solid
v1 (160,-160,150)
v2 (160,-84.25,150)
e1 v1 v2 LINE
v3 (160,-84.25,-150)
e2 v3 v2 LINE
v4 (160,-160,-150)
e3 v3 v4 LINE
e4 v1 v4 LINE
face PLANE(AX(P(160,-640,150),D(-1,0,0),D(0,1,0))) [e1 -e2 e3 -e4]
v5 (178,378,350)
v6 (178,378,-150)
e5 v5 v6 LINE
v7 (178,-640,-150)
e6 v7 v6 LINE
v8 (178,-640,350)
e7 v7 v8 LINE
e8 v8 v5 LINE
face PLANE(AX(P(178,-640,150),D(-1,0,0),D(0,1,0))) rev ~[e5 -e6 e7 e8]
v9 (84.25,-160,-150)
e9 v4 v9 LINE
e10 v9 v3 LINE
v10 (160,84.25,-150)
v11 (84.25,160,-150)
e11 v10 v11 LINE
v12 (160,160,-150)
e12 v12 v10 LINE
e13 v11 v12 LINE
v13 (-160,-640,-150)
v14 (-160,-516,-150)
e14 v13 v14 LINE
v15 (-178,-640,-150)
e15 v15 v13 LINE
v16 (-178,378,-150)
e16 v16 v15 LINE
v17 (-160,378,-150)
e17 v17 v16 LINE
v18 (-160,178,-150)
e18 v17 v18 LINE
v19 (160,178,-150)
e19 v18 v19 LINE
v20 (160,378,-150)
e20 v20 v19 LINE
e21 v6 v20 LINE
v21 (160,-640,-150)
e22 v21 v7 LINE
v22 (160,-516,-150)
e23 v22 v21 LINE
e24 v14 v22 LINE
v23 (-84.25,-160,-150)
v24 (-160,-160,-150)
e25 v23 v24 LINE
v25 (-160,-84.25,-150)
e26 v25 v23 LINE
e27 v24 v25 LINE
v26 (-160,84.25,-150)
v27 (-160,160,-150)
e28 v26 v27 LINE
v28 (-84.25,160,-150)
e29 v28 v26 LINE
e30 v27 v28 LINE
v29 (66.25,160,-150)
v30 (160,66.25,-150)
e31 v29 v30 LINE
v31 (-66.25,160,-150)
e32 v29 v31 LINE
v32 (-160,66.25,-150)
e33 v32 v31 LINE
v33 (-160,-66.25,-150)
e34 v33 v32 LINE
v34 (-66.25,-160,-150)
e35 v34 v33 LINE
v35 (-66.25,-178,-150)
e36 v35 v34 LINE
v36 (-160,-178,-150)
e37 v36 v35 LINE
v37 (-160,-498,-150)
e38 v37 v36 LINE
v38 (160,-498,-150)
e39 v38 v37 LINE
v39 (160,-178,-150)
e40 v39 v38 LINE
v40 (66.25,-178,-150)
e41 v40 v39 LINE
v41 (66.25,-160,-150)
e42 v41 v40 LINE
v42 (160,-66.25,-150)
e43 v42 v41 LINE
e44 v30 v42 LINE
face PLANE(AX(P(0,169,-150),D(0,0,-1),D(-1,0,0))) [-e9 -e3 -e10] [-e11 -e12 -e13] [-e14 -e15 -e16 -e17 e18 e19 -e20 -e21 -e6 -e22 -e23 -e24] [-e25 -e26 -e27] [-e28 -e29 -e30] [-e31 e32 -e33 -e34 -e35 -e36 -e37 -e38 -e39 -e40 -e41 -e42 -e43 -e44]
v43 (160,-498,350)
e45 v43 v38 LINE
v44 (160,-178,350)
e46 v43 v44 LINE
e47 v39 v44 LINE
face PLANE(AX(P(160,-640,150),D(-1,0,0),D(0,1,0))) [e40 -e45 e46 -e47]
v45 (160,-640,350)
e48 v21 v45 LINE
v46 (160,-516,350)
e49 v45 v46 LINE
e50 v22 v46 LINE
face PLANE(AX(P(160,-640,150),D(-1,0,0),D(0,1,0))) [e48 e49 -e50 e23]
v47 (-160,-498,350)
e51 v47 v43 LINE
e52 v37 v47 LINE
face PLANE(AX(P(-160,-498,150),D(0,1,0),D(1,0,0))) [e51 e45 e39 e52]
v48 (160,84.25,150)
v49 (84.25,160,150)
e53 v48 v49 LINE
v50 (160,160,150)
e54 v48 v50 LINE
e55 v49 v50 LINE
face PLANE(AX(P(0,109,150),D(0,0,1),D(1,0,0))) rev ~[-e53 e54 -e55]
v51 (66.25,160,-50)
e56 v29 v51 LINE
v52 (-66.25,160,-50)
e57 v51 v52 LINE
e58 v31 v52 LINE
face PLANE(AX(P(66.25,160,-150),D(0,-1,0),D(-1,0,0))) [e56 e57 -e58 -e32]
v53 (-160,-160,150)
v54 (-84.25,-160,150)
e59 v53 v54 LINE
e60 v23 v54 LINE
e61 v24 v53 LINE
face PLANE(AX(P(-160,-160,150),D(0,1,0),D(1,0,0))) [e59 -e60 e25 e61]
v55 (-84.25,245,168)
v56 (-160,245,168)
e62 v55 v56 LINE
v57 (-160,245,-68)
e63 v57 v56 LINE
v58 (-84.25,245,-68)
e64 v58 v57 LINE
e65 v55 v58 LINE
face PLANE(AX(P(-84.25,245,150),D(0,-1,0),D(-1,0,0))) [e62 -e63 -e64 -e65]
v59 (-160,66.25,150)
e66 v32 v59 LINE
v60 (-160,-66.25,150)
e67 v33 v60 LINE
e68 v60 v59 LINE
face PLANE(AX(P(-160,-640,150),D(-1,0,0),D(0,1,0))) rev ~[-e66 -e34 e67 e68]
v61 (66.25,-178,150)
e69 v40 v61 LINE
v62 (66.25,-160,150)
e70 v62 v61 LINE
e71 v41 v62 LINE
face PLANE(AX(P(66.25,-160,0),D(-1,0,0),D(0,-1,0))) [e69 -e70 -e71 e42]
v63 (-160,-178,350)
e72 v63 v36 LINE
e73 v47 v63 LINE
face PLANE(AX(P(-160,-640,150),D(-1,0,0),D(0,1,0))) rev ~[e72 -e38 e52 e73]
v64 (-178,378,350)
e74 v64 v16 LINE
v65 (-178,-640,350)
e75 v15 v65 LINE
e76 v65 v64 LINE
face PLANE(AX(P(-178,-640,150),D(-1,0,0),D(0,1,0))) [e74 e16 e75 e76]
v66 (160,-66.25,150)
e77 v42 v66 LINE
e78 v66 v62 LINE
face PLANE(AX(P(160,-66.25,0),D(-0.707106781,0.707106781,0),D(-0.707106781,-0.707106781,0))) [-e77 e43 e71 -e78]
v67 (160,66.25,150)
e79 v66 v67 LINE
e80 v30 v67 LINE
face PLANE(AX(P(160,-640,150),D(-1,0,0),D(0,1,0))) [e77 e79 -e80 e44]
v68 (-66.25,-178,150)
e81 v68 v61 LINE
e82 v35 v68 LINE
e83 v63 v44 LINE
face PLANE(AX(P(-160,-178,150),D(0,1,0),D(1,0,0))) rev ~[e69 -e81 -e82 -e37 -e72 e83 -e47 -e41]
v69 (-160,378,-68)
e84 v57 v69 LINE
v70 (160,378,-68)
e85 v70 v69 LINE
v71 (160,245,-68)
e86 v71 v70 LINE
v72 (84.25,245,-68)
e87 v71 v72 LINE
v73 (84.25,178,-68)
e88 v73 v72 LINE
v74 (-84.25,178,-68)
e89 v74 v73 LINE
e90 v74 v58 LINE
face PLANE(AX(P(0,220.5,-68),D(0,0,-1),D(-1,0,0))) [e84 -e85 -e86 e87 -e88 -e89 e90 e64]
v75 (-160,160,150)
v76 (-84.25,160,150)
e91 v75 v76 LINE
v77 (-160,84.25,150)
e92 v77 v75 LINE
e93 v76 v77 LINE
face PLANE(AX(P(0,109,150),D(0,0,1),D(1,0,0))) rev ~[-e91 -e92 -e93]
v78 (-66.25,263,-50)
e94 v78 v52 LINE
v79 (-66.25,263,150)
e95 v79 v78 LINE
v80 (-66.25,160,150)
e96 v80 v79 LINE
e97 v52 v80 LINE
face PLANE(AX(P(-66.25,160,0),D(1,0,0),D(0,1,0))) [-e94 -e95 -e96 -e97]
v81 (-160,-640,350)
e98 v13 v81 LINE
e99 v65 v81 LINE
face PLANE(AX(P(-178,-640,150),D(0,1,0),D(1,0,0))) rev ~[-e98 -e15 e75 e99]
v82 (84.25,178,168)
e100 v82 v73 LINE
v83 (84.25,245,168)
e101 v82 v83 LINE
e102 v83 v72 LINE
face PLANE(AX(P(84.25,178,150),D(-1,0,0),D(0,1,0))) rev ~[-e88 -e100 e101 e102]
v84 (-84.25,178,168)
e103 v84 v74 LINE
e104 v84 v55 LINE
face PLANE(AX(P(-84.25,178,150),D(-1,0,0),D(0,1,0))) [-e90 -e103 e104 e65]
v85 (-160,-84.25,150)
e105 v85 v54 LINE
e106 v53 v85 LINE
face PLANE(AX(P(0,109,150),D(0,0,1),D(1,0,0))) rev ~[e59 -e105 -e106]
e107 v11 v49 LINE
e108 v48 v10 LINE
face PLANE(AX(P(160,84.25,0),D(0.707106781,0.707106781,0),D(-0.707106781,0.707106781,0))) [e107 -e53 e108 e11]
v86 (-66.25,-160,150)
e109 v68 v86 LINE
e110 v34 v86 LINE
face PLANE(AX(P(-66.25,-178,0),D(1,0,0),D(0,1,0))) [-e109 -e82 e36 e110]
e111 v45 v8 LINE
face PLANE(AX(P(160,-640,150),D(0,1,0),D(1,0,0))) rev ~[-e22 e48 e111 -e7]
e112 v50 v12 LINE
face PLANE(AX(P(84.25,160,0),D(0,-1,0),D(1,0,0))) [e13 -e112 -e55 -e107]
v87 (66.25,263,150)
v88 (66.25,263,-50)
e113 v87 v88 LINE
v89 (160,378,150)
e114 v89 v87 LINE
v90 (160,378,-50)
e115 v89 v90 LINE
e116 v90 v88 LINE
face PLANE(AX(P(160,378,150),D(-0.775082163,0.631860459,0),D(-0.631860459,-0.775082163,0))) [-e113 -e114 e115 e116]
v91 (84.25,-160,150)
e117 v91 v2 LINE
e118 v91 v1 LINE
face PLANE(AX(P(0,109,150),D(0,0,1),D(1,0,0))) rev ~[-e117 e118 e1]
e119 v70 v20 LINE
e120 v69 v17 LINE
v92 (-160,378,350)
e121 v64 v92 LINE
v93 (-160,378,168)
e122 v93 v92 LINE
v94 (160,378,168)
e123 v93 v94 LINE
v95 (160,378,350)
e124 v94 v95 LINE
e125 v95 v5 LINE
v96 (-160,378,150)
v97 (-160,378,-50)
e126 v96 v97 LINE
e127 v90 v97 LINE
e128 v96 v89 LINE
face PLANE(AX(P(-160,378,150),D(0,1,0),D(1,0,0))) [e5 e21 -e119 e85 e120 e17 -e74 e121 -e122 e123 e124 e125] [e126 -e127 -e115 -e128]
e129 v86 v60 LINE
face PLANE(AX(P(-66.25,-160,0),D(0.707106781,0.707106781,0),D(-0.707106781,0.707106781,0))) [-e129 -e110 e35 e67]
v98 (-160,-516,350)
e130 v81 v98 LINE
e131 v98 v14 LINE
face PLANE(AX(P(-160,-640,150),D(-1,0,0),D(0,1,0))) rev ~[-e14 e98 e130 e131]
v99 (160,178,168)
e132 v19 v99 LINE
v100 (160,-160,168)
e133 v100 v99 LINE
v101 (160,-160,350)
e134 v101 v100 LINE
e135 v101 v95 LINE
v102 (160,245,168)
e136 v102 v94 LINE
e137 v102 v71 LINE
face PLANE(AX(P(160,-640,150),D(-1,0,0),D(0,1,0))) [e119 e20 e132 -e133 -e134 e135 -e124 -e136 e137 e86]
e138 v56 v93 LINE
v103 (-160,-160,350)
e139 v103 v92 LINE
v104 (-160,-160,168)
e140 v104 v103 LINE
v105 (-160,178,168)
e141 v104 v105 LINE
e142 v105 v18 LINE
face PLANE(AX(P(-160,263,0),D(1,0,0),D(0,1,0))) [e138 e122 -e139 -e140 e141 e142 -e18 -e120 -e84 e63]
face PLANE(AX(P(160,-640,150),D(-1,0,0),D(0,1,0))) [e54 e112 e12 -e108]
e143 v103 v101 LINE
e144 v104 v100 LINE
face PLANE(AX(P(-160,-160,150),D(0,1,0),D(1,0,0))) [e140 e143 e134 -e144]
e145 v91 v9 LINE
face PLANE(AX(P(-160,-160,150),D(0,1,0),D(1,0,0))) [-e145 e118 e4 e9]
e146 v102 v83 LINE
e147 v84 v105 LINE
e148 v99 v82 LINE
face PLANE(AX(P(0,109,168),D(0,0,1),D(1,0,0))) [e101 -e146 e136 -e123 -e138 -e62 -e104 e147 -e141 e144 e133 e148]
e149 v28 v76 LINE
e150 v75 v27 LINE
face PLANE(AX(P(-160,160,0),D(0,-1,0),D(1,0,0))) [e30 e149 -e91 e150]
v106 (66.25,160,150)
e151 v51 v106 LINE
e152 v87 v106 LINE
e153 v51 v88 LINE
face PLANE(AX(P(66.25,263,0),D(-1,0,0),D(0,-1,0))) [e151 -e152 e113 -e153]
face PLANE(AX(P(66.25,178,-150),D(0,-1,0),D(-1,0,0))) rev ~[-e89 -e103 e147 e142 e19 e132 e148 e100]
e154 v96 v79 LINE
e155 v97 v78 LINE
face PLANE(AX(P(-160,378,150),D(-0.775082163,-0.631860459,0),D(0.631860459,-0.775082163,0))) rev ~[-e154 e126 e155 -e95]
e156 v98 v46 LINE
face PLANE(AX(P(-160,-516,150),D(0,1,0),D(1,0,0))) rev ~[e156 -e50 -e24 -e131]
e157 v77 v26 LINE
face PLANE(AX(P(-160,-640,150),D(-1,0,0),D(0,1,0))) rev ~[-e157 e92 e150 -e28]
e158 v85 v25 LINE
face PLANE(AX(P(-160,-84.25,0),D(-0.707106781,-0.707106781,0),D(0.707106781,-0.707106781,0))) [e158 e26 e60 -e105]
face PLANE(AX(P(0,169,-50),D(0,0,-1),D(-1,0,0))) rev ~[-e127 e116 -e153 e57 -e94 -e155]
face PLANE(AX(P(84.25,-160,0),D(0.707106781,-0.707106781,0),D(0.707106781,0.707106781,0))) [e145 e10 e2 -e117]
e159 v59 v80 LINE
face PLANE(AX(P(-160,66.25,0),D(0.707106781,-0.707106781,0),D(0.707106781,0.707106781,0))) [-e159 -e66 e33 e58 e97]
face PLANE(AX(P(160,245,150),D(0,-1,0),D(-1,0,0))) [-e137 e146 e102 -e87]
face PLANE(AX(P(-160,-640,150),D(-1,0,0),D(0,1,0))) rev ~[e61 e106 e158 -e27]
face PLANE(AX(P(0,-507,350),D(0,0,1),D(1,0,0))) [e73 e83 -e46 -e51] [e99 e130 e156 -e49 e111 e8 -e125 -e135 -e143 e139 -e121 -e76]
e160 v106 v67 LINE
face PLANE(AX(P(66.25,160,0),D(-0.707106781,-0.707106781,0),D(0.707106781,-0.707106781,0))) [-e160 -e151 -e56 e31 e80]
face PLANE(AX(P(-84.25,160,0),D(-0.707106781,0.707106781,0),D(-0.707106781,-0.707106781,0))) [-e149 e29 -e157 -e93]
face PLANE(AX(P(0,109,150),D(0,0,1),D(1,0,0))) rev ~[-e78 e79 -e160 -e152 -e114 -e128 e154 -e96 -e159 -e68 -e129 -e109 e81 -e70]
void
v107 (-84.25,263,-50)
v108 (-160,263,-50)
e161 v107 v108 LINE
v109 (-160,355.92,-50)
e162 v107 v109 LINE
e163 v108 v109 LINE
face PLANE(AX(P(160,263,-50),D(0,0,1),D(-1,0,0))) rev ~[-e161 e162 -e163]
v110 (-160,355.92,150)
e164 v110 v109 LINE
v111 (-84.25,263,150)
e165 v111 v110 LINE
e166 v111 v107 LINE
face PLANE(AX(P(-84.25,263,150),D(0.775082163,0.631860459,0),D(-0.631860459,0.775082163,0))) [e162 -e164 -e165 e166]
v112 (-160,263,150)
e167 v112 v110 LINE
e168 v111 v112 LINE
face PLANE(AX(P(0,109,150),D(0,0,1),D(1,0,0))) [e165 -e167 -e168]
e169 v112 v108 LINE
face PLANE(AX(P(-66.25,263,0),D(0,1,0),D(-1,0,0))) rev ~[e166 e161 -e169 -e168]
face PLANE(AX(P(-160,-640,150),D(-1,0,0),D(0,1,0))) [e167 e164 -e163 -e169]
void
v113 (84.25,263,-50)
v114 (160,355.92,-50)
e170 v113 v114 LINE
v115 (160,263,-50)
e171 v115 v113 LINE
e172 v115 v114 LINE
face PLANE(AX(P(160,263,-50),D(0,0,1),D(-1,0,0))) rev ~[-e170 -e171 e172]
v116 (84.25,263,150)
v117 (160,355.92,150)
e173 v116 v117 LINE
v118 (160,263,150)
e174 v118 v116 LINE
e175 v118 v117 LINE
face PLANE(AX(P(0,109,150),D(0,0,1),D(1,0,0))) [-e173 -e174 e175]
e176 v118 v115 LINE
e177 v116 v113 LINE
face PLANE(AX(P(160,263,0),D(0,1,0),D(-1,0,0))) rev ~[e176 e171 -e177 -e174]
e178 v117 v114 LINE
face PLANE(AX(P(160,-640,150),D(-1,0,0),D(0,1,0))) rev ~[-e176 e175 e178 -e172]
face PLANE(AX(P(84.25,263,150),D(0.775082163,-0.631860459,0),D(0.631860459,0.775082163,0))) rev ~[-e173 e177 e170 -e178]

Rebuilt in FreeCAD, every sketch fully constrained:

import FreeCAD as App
import Part
import Sketcher
from FreeCAD import Vector
Q = App.Units.Quantity


def add_polygon(sketch, points):
    """Adds a closed chain of lines whose ends are joined by coincident constraints."""
    first, n = sketch.GeometryCount, len(points)
    for a, b in zip(points, points[1:] + points[:1]):
        sketch.addGeometry(Part.LineSegment(App.Vector(*a, 0), App.Vector(*b, 0)), False)
    for i in range(n):
        sketch.addConstraint(Sketcher.Constraint("Coincident", first + i, 2, first + (i + 1) % n, 1))

doc = App.newDocument("Part")
body = doc.addObject("PartDesign::Body", "Body")

# Sketch on XY plane
sketch1 = body.newObject("Sketcher::SketchObject", "Sketch")
sketch1.AttachmentSupport = (doc.getObject("XY_Plane"), [""])
sketch1.MapMode = "FlatFace"
add_polygon(sketch1, [(66.25, 263), (66.25, 160), (160, 66.25), (160, -66.25), (66.25, -160), (66.25, -178), (160, -178), (160, -498), (-160, -498), (-160, -178), (-66.25, -178), (-66.25, -160), (-160, -66.25), (-160, 66.25), (-66.25, 160), (-66.25, 263), (-160, 263), (-160, 378), (-178, 378), (-178, -640), (-160, -640), (-160, -516), (160, -516), (160, -640), (178, -640), (178, 378), (160, 378), (160, 263)])  # lines 0-27
add_polygon(sketch1, [(-160, -84.25), (-84.25, -160), (-160, -160)])  # lines 28-30
add_polygon(sketch1, [(84.25, -160), (160, -84.25), (160, -160)])  # lines 31-33
add_polygon(sketch1, [(-160, 160), (-84.25, 160), (-160, 84.25)])  # lines 34-36
add_polygon(sketch1, [(-84.25, 178), (-160, 178), (-160, 245), (-84.25, 245)])  # lines 37-40
add_polygon(sketch1, [(160, 84.25), (84.25, 160), (160, 160)])  # lines 41-43
add_polygon(sketch1, [(160, 178), (84.25, 178), (84.25, 245), (160, 245)])  # lines 44-47
sketch1.addConstraint(Sketcher.Constraint("Vertical", 0))
sketch1.addConstraint(Sketcher.Constraint("Vertical", 2))
sketch1.addConstraint(Sketcher.Constraint("Vertical", 4))
sketch1.addConstraint(Sketcher.Constraint("Horizontal", 5))
sketch1.addConstraint(Sketcher.Constraint("Vertical", 6))
sketch1.addConstraint(Sketcher.Constraint("Horizontal", 7))
sketch1.addConstraint(Sketcher.Constraint("Vertical", 8))
sketch1.addConstraint(Sketcher.Constraint("Horizontal", 9))
sketch1.addConstraint(Sketcher.Constraint("Vertical", 10))
sketch1.addConstraint(Sketcher.Constraint("Vertical", 12))
sketch1.addConstraint(Sketcher.Constraint("Vertical", 14))
sketch1.addConstraint(Sketcher.Constraint("Horizontal", 15))
sketch1.addConstraint(Sketcher.Constraint("Vertical", 16))
sketch1.addConstraint(Sketcher.Constraint("Horizontal", 17))
sketch1.addConstraint(Sketcher.Constraint("Vertical", 18))
sketch1.addConstraint(Sketcher.Constraint("Horizontal", 19))
sketch1.addConstraint(Sketcher.Constraint("Vertical", 20))
sketch1.addConstraint(Sketcher.Constraint("Horizontal", 21))
sketch1.addConstraint(Sketcher.Constraint("Vertical", 22))
sketch1.addConstraint(Sketcher.Constraint("Horizontal", 23))
sketch1.addConstraint(Sketcher.Constraint("Vertical", 24))
sketch1.addConstraint(Sketcher.Constraint("Horizontal", 25))
sketch1.addConstraint(Sketcher.Constraint("Vertical", 26))
sketch1.addConstraint(Sketcher.Constraint("Horizontal", 27))
sketch1.addConstraint(Sketcher.Constraint("Horizontal", 29))
sketch1.addConstraint(Sketcher.Constraint("Vertical", 30))
sketch1.addConstraint(Sketcher.Constraint("Vertical", 32))
sketch1.addConstraint(Sketcher.Constraint("Horizontal", 33))
sketch1.addConstraint(Sketcher.Constraint("Horizontal", 34))
sketch1.addConstraint(Sketcher.Constraint("Vertical", 36))
sketch1.addConstraint(Sketcher.Constraint("Horizontal", 37))
sketch1.addConstraint(Sketcher.Constraint("Vertical", 38))
sketch1.addConstraint(Sketcher.Constraint("Horizontal", 39))
sketch1.addConstraint(Sketcher.Constraint("Vertical", 40))
sketch1.addConstraint(Sketcher.Constraint("Horizontal", 42))
sketch1.addConstraint(Sketcher.Constraint("Vertical", 43))
sketch1.addConstraint(Sketcher.Constraint("Horizontal", 44))
sketch1.addConstraint(Sketcher.Constraint("Vertical", 45))
sketch1.addConstraint(Sketcher.Constraint("Horizontal", 46))
sketch1.addConstraint(Sketcher.Constraint("Vertical", 47))
sketch1.addConstraint(Sketcher.Constraint("Symmetric", 0, 2, 10, 2, -1, 1))
sketch1.addConstraint(Sketcher.Constraint("Symmetric", 1, 2, 11, 2, -1, 1))
sketch1.addConstraint(Sketcher.Constraint("Symmetric", 3, 2, 13, 2, -1, 1))
sketch1.addConstraint(Sketcher.Constraint("Symmetric", 33, 2, 34, 2, -1, 1))
sketch1.addConstraint(Sketcher.Constraint("Symmetric", 31, 2, 35, 2, -1, 1))
sketch1.addConstraint(Sketcher.Constraint("Symmetric", 5, 2, 37, 2, -1, 1))
sketch1.addConstraint(Sketcher.Constraint("Symmetric", 28, 2, 41, 2, -1, 1))
sketch1.addConstraint(Sketcher.Constraint("Symmetric", 30, 2, 43, 2, -1, 1))
sketch1.addConstraint(Sketcher.Constraint("Symmetric", 8, 2, 47, 2, -1, 1))
sketch1.addConstraint(Sketcher.Constraint("Symmetric", 5, 2, 8, 2, -2))
sketch1.addConstraint(Sketcher.Constraint("Symmetric", 3, 2, 10, 2, -2))
sketch1.addConstraint(Sketcher.Constraint("Symmetric", 19, 2, 22, 2, -2))
sketch1.addConstraint(Sketcher.Constraint("Symmetric", 17, 2, 24, 2, -2))
sketch1.addConstraint(Sketcher.Constraint("Symmetric", 15, 2, 26, 2, -2))
sketch1.addConstraint(Sketcher.Constraint("Symmetric", 30, 2, 31, 2, -2))
sketch1.addConstraint(Sketcher.Constraint("Symmetric", 28, 2, 33, 2, -2))
sketch1.addConstraint(Sketcher.Constraint("Symmetric", 39, 2, 45, 2, -2))
sketch1.addConstraint(Sketcher.Constraint("Perpendicular", 1, 3))
sketch1.addConstraint(Sketcher.Constraint("Perpendicular", 11, 13))
sketch1.addConstraint(Sketcher.Constraint("Perpendicular", 13, 28))
sketch1.addConstraint(Sketcher.Constraint("Perpendicular", 28, 31))
sketch1.addConstraint(Sketcher.Constraint("Horizontal", 10, 2, 28, 2))
sketch1.addConstraint(Sketcher.Constraint("Vertical", 2, 2, 5, 2))
sketch1.addConstraint(Sketcher.Constraint("Vertical", 12, 2, 15, 2))
sketch1.addConstraint(Sketcher.Constraint("Vertical", 16, 2, 19, 2))
sketch1.addConstraint(Sketcher.Constraint("Vertical", 20, 2, 29, 2))
sketch1.addConstraint(Sketcher.Constraint("Vertical", 34, 2, 39, 2))
sketch1.addConstraint(Sketcher.Constraint("Equal", 25, 4))
sketch1.addConstraint(Sketcher.Constraint("Equal", 21, 6))
sketch1.addConstraint(Sketcher.Constraint("DistanceX", 7, 2, 7, 1, Q("320 mm")))
sketch1.addConstraint(Sketcher.Constraint("DistanceX", 17, 2, 17, 1, Q("18 mm")))
sketch1.addConstraint(Sketcher.Constraint("DistanceY", 0, 2, 0, 1, Q("103 mm")))
sketch1.addConstraint(Sketcher.Constraint("DistanceY", 16, 1, 16, 2, Q("115 mm")))
sketch1.addConstraint(Sketcher.Constraint("DistanceY", 18, 2, 18, 1, Q("1018 mm")))
sketch1.addConstraint(Sketcher.Constraint("DistanceY", 20, 1, 20, 2, Q("124 mm")))
sketch1.addConstraint(Sketcher.Constraint("DistanceY", 38, 1, 38, 2, Q("67 mm")))
sketch1.addConstraint(Sketcher.Constraint("DistanceY", 2, 2, 2, 1, Q("132.5 mm")))
sketch1.addConstraint(Sketcher.Constraint("DistanceY", -1, 1, 0, 2, Q("160 mm")))
sketch1.addConstraint(Sketcher.Constraint("DistanceX", 28, 2, 10, 2, Q("18 mm")))
pad1 = body.newObject("PartDesign::Pad", "Pad")
pad1.Profile = sketch1
pad1.Length = 300
pad1.Midplane = True

# Sketch on XZ plane
sketch2 = body.newObject("Sketcher::SketchObject", "Sketch001")
sketch2.AttachmentSupport = (doc.getObject("XZ_Plane"), [""])
sketch2.MapMode = "FlatFace"
sketch2.AttachmentOffset = App.Placement(Vector(0, 0, -263), App.Rotation())
add_polygon(sketch2, [(160, -68), (160, -50), (-160, -50), (-160, -68)])  # lines 0-3
sketch2.addConstraint(Sketcher.Constraint("Vertical", 0))
sketch2.addConstraint(Sketcher.Constraint("Horizontal", 1))
sketch2.addConstraint(Sketcher.Constraint("Vertical", 2))
sketch2.addConstraint(Sketcher.Constraint("Horizontal", 3))
sketch2.addConstraint(Sketcher.Constraint("DistanceX", 1, 2, 1, 1, Q("320 mm")))
sketch2.addConstraint(Sketcher.Constraint("DistanceY", 0, 1, 0, 2, Q("18 mm")))
sketch2.addConstraint(Sketcher.Constraint("DistanceX", -1, 1, 0, 2, Q("160 mm")))
sketch2.addConstraint(Sketcher.Constraint("DistanceY", 0, 2, -1, 1, Q("50 mm")))
pad2 = body.newObject("PartDesign::Pad", "Pad001")
pad2.Profile = sketch2
pad2.Length = 115
pad2.Reversed = True

# Sketch on XY plane
sketch3 = body.newObject("Sketcher::SketchObject", "Sketch002")
sketch3.AttachmentSupport = (doc.getObject("XY_Plane"), [""])
sketch3.MapMode = "FlatFace"
sketch3.AttachmentOffset = App.Placement(Vector(0, 0, 150), App.Rotation())
add_polygon(sketch3, [(-66.25, 263), (-160, 378), (-160, 355.92), (-84.25, 263)])  # lines 0-3
sketch3.addConstraint(Sketcher.Constraint("Vertical", 1))
sketch3.addConstraint(Sketcher.Constraint("Horizontal", 3))
sketch3.addConstraint(Sketcher.Constraint("Parallel", 0, 2))
sketch3.addConstraint(Sketcher.Constraint("DistanceX", 3, 1, 3, 2, Q("18 mm")))
sketch3.addConstraint(Sketcher.Constraint("DistanceX", 0, 2, -1, 1, Q("160 mm")))
sketch3.addConstraint(Sketcher.Constraint("DistanceY", -1, 1, 0, 2, Q("378 mm")))
sketch3.addConstraint(Sketcher.Constraint("DistanceY", -1, 1, 2, 2, Q("263 mm")))
sketch3.addConstraint(Sketcher.Constraint("DistanceY", 1, 2, 1, 1, Q("22.08 mm")))
pad3 = body.newObject("PartDesign::Pad", "Pad002")
pad3.Profile = sketch3
pad3.Length = 200
pad3.Reversed = True

# Sketch on XY plane
sketch4 = body.newObject("Sketcher::SketchObject", "Sketch003")
sketch4.AttachmentSupport = (doc.getObject("XY_Plane"), [""])
sketch4.MapMode = "FlatFace"
sketch4.AttachmentOffset = App.Placement(Vector(0, 0, 150), App.Rotation())
add_polygon(sketch4, [(160, 378), (66.25, 263), (84.25, 263), (160, 355.92)])  # lines 0-3
sketch4.addConstraint(Sketcher.Constraint("Horizontal", 1))
sketch4.addConstraint(Sketcher.Constraint("Vertical", 3))
sketch4.addConstraint(Sketcher.Constraint("Parallel", 0, 2))
sketch4.addConstraint(Sketcher.Constraint("DistanceX", 1, 1, 1, 2, Q("18 mm")))
sketch4.addConstraint(Sketcher.Constraint("DistanceY", -1, 1, 0, 2, Q("263 mm")))
sketch4.addConstraint(Sketcher.Constraint("DistanceX", -1, 1, 2, 2, Q("160 mm")))
sketch4.addConstraint(Sketcher.Constraint("DistanceY", -1, 1, 3, 2, Q("378 mm")))
sketch4.addConstraint(Sketcher.Constraint("DistanceY", 3, 1, 3, 2, Q("22.08 mm")))
pad4 = body.newObject("PartDesign::Pad", "Pad003")
pad4.Profile = sketch4
pad4.Length = 200
pad4.Reversed = True

# Sketch on XY plane
sketch5 = body.newObject("Sketcher::SketchObject", "Sketch004")
sketch5.AttachmentSupport = (doc.getObject("XY_Plane"), [""])
sketch5.MapMode = "FlatFace"
sketch5.AttachmentOffset = App.Placement(Vector(0, 0, 150), App.Rotation())
add_polygon(sketch5, [(-178, 378), (-178, -640), (-160, -640), (-160, 378)])  # lines 0-3
sketch5.addConstraint(Sketcher.Constraint("Vertical", 0))
sketch5.addConstraint(Sketcher.Constraint("Horizontal", 1))
sketch5.addConstraint(Sketcher.Constraint("Vertical", 2))
sketch5.addConstraint(Sketcher.Constraint("Horizontal", 3))
sketch5.addConstraint(Sketcher.Constraint("DistanceX", 1, 1, 1, 2, Q("18 mm")))
sketch5.addConstraint(Sketcher.Constraint("DistanceY", 0, 2, 0, 1, Q("1018 mm")))
sketch5.addConstraint(Sketcher.Constraint("DistanceX", 0, 2, -1, 1, Q("178 mm")))
sketch5.addConstraint(Sketcher.Constraint("DistanceY", 0, 2, -1, 1, Q("640 mm")))
pad5 = body.newObject("PartDesign::Pad", "Pad004")
pad5.Profile = sketch5
pad5.Length = 200

# Sketch on XY plane
sketch6 = body.newObject("Sketcher::SketchObject", "Sketch005")
sketch6.AttachmentSupport = (doc.getObject("XY_Plane"), [""])
sketch6.MapMode = "FlatFace"
sketch6.AttachmentOffset = App.Placement(Vector(0, 0, 150), App.Rotation())
add_polygon(sketch6, [(160, 378), (160, -640), (178, -640), (178, 378)])  # lines 0-3
sketch6.addConstraint(Sketcher.Constraint("Vertical", 0))
sketch6.addConstraint(Sketcher.Constraint("Horizontal", 1))
sketch6.addConstraint(Sketcher.Constraint("Vertical", 2))
sketch6.addConstraint(Sketcher.Constraint("Horizontal", 3))
sketch6.addConstraint(Sketcher.Constraint("DistanceX", 1, 1, 1, 2, Q("18 mm")))
sketch6.addConstraint(Sketcher.Constraint("DistanceY", 0, 2, 0, 1, Q("1018 mm")))
sketch6.addConstraint(Sketcher.Constraint("DistanceX", -1, 1, 0, 2, Q("160 mm")))
sketch6.addConstraint(Sketcher.Constraint("DistanceY", 0, 2, -1, 1, Q("640 mm")))
pad6 = body.newObject("PartDesign::Pad", "Pad005")
pad6.Profile = sketch6
pad6.Length = 200

# Sketch on XY plane
sketch7 = body.newObject("Sketcher::SketchObject", "Sketch006")
sketch7.AttachmentSupport = (doc.getObject("XY_Plane"), [""])
sketch7.MapMode = "FlatFace"
sketch7.AttachmentOffset = App.Placement(Vector(0, 0, 150), App.Rotation())
add_polygon(sketch7, [(-160, -160), (-160, -178), (160, -178), (160, -160)])  # lines 0-3
sketch7.addConstraint(Sketcher.Constraint("Vertical", 0))
sketch7.addConstraint(Sketcher.Constraint("Horizontal", 1))
sketch7.addConstraint(Sketcher.Constraint("Vertical", 2))
sketch7.addConstraint(Sketcher.Constraint("Horizontal", 3))
sketch7.addConstraint(Sketcher.Constraint("DistanceX", 1, 1, 1, 2, Q("320 mm")))
sketch7.addConstraint(Sketcher.Constraint("DistanceY", 0, 2, 0, 1, Q("18 mm")))
sketch7.addConstraint(Sketcher.Constraint("DistanceX", 0, 2, -1, 1, Q("160 mm")))
sketch7.addConstraint(Sketcher.Constraint("DistanceY", 0, 2, -1, 1, Q("178 mm")))
pad7 = body.newObject("PartDesign::Pad", "Pad006")
pad7.Profile = sketch7
pad7.Length = 200

# Sketch on XY plane
sketch8 = body.newObject("Sketcher::SketchObject", "Sketch007")
sketch8.AttachmentSupport = (doc.getObject("XY_Plane"), [""])
sketch8.MapMode = "FlatFace"
sketch8.AttachmentOffset = App.Placement(Vector(0, 0, 150), App.Rotation())
add_polygon(sketch8, [(-160, -498), (-160, -516), (160, -516), (160, -498)])  # lines 0-3
sketch8.addConstraint(Sketcher.Constraint("Vertical", 0))
sketch8.addConstraint(Sketcher.Constraint("Horizontal", 1))
sketch8.addConstraint(Sketcher.Constraint("Vertical", 2))
sketch8.addConstraint(Sketcher.Constraint("Horizontal", 3))
sketch8.addConstraint(Sketcher.Constraint("DistanceX", 1, 1, 1, 2, Q("320 mm")))
sketch8.addConstraint(Sketcher.Constraint("DistanceY", 0, 2, 0, 1, Q("18 mm")))
sketch8.addConstraint(Sketcher.Constraint("DistanceX", 0, 2, -1, 1, Q("160 mm")))
sketch8.addConstraint(Sketcher.Constraint("DistanceY", 0, 2, -1, 1, Q("516 mm")))
pad8 = body.newObject("PartDesign::Pad", "Pad007")
pad8.Profile = sketch8
pad8.Length = 200

# Sketch on XY plane
sketch9 = body.newObject("Sketcher::SketchObject", "Sketch008")
sketch9.AttachmentSupport = (doc.getObject("XY_Plane"), [""])
sketch9.MapMode = "FlatFace"
sketch9.AttachmentOffset = App.Placement(Vector(0, 0, 150), App.Rotation())
add_polygon(sketch9, [(-160, 378), (-160, -160), (160, -160), (160, 378)])  # lines 0-3
sketch9.addConstraint(Sketcher.Constraint("Vertical", 0))
sketch9.addConstraint(Sketcher.Constraint("Horizontal", 1))
sketch9.addConstraint(Sketcher.Constraint("Vertical", 2))
sketch9.addConstraint(Sketcher.Constraint("Horizontal", 3))
sketch9.addConstraint(Sketcher.Constraint("DistanceX", 1, 1, 1, 2, Q("320 mm")))
sketch9.addConstraint(Sketcher.Constraint("DistanceY", 0, 2, 0, 1, Q("538 mm")))
sketch9.addConstraint(Sketcher.Constraint("DistanceX", 0, 2, -1, 1, Q("160 mm")))
sketch9.addConstraint(Sketcher.Constraint("DistanceY", 0, 2, -1, 1, Q("160 mm")))
pad9 = body.newObject("PartDesign::Pad", "Pad008")
pad9.Profile = sketch9
pad9.Length = 18

# Sketch on XY plane
sketch10 = body.newObject("Sketcher::SketchObject", "Sketch009")
sketch10.AttachmentSupport = (doc.getObject("XY_Plane"), [""])
sketch10.MapMode = "FlatFace"
sketch10.AttachmentOffset = App.Placement(Vector(0, 0, 150), App.Rotation())
add_polygon(sketch10, [(160, 245), (160, 178), (84.25, 178), (84.25, 245)])  # lines 0-3
sketch10.addConstraint(Sketcher.Constraint("Vertical", 0))
sketch10.addConstraint(Sketcher.Constraint("Horizontal", 1))
sketch10.addConstraint(Sketcher.Constraint("Vertical", 2))
sketch10.addConstraint(Sketcher.Constraint("Horizontal", 3))
sketch10.addConstraint(Sketcher.Constraint("DistanceY", 0, 2, 0, 1, Q("67 mm")))
sketch10.addConstraint(Sketcher.Constraint("DistanceX", -1, 1, 0, 2, Q("160 mm")))
sketch10.addConstraint(Sketcher.Constraint("DistanceY", -1, 1, 0, 2, Q("178 mm")))
sketch10.addConstraint(Sketcher.Constraint("DistanceX", 1, 2, 1, 1, Q("75.75 mm")))
pocket1 = body.newObject("PartDesign::Pocket", "Pocket")
pocket1.Profile = sketch10
pocket1.Length = 18
pocket1.Reversed = True

# Sketch on XY plane
sketch11 = body.newObject("Sketcher::SketchObject", "Sketch010")
sketch11.AttachmentSupport = (doc.getObject("XY_Plane"), [""])
sketch11.MapMode = "FlatFace"
sketch11.AttachmentOffset = App.Placement(Vector(0, 0, 150), App.Rotation())
add_polygon(sketch11, [(-84.25, 245), (-84.25, 178), (-160, 178), (-160, 245)])  # lines 0-3
sketch11.addConstraint(Sketcher.Constraint("Vertical", 0))
sketch11.addConstraint(Sketcher.Constraint("Horizontal", 1))
sketch11.addConstraint(Sketcher.Constraint("Vertical", 2))
sketch11.addConstraint(Sketcher.Constraint("Horizontal", 3))
sketch11.addConstraint(Sketcher.Constraint("DistanceY", 0, 2, 0, 1, Q("67 mm")))
sketch11.addConstraint(Sketcher.Constraint("DistanceY", -1, 1, 0, 2, Q("178 mm")))
sketch11.addConstraint(Sketcher.Constraint("DistanceX", 1, 2, -1, 1, Q("160 mm")))
sketch11.addConstraint(Sketcher.Constraint("DistanceX", 1, 2, 1, 1, Q("75.75 mm")))
pocket2 = body.newObject("PartDesign::Pocket", "Pocket001")
pocket2.Profile = sketch11
pocket2.Length = 18
pocket2.Reversed = True

# Sketch on XZ plane
sketch12 = body.newObject("Sketcher::SketchObject", "Sketch011")
sketch12.AttachmentSupport = (doc.getObject("XZ_Plane"), [""])
sketch12.MapMode = "FlatFace"
sketch12.AttachmentOffset = App.Placement(Vector(0, 0, -263), App.Rotation())
add_polygon(sketch12, [(66.25, -150), (66.25, -68), (160, -68), (160, -150)])  # lines 0-3
sketch12.addConstraint(Sketcher.Constraint("Vertical", 0))
sketch12.addConstraint(Sketcher.Constraint("Horizontal", 1))
sketch12.addConstraint(Sketcher.Constraint("Vertical", 2))
sketch12.addConstraint(Sketcher.Constraint("Horizontal", 3))
sketch12.addConstraint(Sketcher.Constraint("DistanceY", 0, 1, 0, 2, Q("82 mm")))
sketch12.addConstraint(Sketcher.Constraint("DistanceY", 0, 2, -1, 1, Q("68 mm")))
sketch12.addConstraint(Sketcher.Constraint("DistanceX", -1, 1, 1, 2, Q("160 mm")))
sketch12.addConstraint(Sketcher.Constraint("DistanceX", 1, 1, 1, 2, Q("93.75 mm")))
pocket3 = body.newObject("PartDesign::Pocket", "Pocket002")
pocket3.Profile = sketch12
pocket3.Length = 85
pocket3.Reversed = True

# Sketch on XZ plane
sketch13 = body.newObject("Sketcher::SketchObject", "Sketch012")
sketch13.AttachmentSupport = (doc.getObject("XZ_Plane"), [""])
sketch13.MapMode = "FlatFace"
sketch13.AttachmentOffset = App.Placement(Vector(0, 0, -263), App.Rotation())
add_polygon(sketch13, [(-160, -150), (-160, -68), (-66.25, -68), (-66.25, -150)])  # lines 0-3
sketch13.addConstraint(Sketcher.Constraint("Vertical", 0))
sketch13.addConstraint(Sketcher.Constraint("Horizontal", 1))
sketch13.addConstraint(Sketcher.Constraint("Vertical", 2))
sketch13.addConstraint(Sketcher.Constraint("Horizontal", 3))
sketch13.addConstraint(Sketcher.Constraint("DistanceY", 0, 1, 0, 2, Q("82 mm")))
sketch13.addConstraint(Sketcher.Constraint("DistanceX", 0, 2, -1, 1, Q("160 mm")))
sketch13.addConstraint(Sketcher.Constraint("DistanceY", 0, 2, -1, 1, Q("68 mm")))
sketch13.addConstraint(Sketcher.Constraint("DistanceX", 1, 1, 1, 2, Q("93.75 mm")))
pocket4 = body.newObject("PartDesign::Pocket", "Pocket003")
pocket4.Profile = sketch13
pocket4.Length = 85
pocket4.Reversed = True

# Sketch on XY plane
sketch14 = body.newObject("Sketcher::SketchObject", "Sketch013")
sketch14.AttachmentSupport = (doc.getObject("XY_Plane"), [""])
sketch14.MapMode = "FlatFace"
sketch14.AttachmentOffset = App.Placement(Vector(0, 0, -68), App.Rotation())
add_polygon(sketch14, [(66.25, 263), (66.25, 178), (-66.25, 178), (-66.25, 263)])  # lines 0-3
sketch14.addConstraint(Sketcher.Constraint("Vertical", 0))
sketch14.addConstraint(Sketcher.Constraint("Horizontal", 1))
sketch14.addConstraint(Sketcher.Constraint("Vertical", 2))
sketch14.addConstraint(Sketcher.Constraint("Horizontal", 3))
sketch14.addConstraint(Sketcher.Constraint("DistanceY", 0, 2, 0, 1, Q("85 mm")))
sketch14.addConstraint(Sketcher.Constraint("DistanceX", 1, 2, 1, 1, Q("132.5 mm")))
sketch14.addConstraint(Sketcher.Constraint("DistanceY", -1, 1, 0, 2, Q("178 mm")))
sketch14.addConstraint(Sketcher.Constraint("DistanceX", -1, 1, 0, 2, Q("66.25 mm")))
pad10 = body.newObject("PartDesign::Pad", "Pad009")
pad10.Profile = sketch14
pad10.Length = 18

# Sketch on XY plane
sketch15 = body.newObject("Sketcher::SketchObject", "Sketch014")
sketch15.AttachmentSupport = (doc.getObject("XY_Plane"), [""])
sketch15.MapMode = "FlatFace"
sketch15.AttachmentOffset = App.Placement(Vector(0, 0, -150), App.Rotation())
add_polygon(sketch15, [(66.25, 178), (66.25, 160), (-66.25, 160), (-66.25, 178)])  # lines 0-3
sketch15.addConstraint(Sketcher.Constraint("Vertical", 0))
sketch15.addConstraint(Sketcher.Constraint("Horizontal", 1))
sketch15.addConstraint(Sketcher.Constraint("Vertical", 2))
sketch15.addConstraint(Sketcher.Constraint("Horizontal", 3))
sketch15.addConstraint(Sketcher.Constraint("DistanceY", 0, 2, 0, 1, Q("18 mm")))
sketch15.addConstraint(Sketcher.Constraint("DistanceX", 1, 2, 1, 1, Q("132.5 mm")))
sketch15.addConstraint(Sketcher.Constraint("DistanceY", -1, 1, 0, 2, Q("160 mm")))
sketch15.addConstraint(Sketcher.Constraint("DistanceX", -1, 1, 0, 2, Q("66.25 mm")))
pad11 = body.newObject("PartDesign::Pad", "Pad010")
pad11.Profile = sketch15
pad11.Length = 100

doc.recompute()
